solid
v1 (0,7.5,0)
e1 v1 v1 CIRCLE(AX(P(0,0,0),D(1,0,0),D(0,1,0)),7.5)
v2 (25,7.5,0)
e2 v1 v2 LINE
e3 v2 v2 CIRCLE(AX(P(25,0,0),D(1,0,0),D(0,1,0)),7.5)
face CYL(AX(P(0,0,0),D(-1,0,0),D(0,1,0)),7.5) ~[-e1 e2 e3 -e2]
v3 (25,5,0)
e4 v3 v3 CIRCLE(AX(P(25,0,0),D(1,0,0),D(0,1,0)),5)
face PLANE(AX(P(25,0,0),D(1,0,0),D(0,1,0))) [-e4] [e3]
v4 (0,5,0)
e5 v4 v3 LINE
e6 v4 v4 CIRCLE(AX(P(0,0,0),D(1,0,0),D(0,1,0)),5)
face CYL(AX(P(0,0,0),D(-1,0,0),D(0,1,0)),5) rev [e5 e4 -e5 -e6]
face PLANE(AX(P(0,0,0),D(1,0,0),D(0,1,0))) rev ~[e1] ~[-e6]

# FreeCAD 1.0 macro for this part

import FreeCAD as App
import Part
import Sketcher

V = App.Vector

doc = App.newDocument("Part")
body = doc.addObject("PartDesign::Body", "Body")

# Sketch on YZ plane
sketch1 = doc.addObject("Sketcher::SketchObject", "Sketch")
body.addObject(sketch1)
sketch1.AttachmentSupport = (doc.YZ_Plane, [""])
sketch1.MapMode = "FlatFace"
sketch1.addGeometry(Part.Circle(V(0, 0, 0), V(0, 0, 1), 8), False)
sketch1.addConstraint(Sketcher.Constraint("Coincident", 0, 3, -1, 1))
sketch1.addConstraint(Sketcher.Constraint("Diameter", 0, 15.0))
pad1 = doc.addObject("PartDesign::Pad", "Pad")
body.addObject(pad1)
pad1.Profile = sketch1
pad1.Length = 25

# Sketch on YZ plane
sketch2 = doc.addObject("Sketcher::SketchObject", "Sketch001")
body.addObject(sketch2)
sketch2.AttachmentSupport = (doc.YZ_Plane, [""])
sketch2.MapMode = "FlatFace"
sketch2.addGeometry(Part.Circle(V(0, 0, 0), V(0, 0, 1), 5), False)
sketch2.addConstraint(Sketcher.Constraint("Coincident", 0, 3, -1, 1))
sketch2.addConstraint(Sketcher.Constraint("Diameter", 0, 10.0))
pocket1 = doc.addObject("PartDesign::Pocket", "Pocket")
body.addObject(pocket1)
pocket1.Profile = sketch2
pocket1.Length = 25
pocket1.Reversed = True

doc.recompute()
